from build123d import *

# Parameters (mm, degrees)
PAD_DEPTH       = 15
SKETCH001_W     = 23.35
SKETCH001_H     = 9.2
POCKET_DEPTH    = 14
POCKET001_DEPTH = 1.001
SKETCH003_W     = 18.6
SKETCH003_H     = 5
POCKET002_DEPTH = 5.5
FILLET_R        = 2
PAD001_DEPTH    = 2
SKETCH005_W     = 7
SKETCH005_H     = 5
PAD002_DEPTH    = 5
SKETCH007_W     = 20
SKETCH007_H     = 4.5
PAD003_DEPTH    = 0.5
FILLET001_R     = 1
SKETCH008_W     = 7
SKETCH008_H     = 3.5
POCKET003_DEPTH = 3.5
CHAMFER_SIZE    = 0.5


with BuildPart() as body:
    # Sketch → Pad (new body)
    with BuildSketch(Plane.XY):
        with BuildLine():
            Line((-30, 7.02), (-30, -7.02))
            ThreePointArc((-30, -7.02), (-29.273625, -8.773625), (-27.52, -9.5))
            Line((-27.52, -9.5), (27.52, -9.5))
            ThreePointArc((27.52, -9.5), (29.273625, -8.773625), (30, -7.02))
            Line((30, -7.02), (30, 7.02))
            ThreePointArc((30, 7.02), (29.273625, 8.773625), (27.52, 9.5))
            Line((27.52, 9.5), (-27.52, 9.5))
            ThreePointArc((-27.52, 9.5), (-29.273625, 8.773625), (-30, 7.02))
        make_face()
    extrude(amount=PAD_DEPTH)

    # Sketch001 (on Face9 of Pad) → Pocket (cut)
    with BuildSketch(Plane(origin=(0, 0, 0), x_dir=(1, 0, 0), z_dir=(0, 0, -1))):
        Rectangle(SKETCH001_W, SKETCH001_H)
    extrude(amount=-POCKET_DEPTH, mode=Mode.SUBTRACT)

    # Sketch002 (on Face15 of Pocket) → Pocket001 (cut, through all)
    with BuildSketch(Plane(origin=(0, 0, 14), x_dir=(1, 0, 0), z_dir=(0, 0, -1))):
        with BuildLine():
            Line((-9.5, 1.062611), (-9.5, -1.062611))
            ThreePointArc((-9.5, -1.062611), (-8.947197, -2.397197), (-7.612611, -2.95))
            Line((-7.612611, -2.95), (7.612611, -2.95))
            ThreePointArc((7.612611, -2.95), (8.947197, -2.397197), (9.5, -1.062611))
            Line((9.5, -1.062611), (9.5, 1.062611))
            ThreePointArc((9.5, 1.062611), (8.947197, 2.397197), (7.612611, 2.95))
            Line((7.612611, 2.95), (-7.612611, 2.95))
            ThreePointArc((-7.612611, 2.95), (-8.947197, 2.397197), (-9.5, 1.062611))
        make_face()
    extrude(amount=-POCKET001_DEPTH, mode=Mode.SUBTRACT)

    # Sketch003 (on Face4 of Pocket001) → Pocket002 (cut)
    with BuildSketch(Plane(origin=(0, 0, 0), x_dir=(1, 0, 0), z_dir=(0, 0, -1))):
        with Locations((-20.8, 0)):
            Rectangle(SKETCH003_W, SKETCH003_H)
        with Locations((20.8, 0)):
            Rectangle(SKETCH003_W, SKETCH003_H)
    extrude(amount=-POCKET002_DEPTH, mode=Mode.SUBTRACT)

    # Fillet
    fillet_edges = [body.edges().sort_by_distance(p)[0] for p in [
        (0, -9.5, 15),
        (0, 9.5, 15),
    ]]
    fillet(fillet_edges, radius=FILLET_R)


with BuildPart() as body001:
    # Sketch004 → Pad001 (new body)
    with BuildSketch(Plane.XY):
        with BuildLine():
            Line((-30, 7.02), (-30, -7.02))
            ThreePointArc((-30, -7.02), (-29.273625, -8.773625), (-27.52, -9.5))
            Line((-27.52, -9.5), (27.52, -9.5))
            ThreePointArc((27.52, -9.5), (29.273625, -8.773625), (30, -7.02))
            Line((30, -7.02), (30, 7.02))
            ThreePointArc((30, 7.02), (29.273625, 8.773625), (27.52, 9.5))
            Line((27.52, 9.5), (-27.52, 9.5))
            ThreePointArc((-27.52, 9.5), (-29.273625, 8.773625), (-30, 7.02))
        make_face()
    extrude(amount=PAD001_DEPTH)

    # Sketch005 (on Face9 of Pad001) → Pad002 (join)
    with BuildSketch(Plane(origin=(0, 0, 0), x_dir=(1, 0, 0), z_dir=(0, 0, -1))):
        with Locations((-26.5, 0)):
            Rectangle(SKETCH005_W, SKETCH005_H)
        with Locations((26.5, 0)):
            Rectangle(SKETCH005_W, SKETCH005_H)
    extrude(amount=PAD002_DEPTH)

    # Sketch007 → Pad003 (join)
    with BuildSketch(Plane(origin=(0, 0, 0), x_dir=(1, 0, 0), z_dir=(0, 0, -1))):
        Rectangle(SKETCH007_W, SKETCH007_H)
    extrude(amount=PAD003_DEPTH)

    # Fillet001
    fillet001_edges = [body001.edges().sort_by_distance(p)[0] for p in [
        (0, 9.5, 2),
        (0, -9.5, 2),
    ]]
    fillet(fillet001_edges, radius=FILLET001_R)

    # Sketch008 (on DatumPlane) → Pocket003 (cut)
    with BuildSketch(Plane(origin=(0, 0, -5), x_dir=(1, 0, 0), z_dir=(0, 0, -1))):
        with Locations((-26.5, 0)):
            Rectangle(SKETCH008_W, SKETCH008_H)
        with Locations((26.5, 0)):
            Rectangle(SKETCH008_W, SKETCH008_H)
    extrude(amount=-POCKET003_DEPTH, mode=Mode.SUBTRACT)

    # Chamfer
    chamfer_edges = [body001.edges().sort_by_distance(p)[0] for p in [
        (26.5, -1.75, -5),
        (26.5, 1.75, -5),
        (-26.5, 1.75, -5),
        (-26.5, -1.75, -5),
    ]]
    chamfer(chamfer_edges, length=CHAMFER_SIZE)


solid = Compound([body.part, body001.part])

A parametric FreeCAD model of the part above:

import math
import FreeCAD as App
import Part
import Sketcher

V = App.Vector
Q = App.Units.Quantity


def edges_at(feature, points):
    """Names of the edges that pass closest to the given points."""
    edges = feature.Shape.Edges
    near = lambda p: min(range(len(edges)), key=lambda i: edges[i].distToShape(Part.Vertex(*p))[0])
    return sorted({f"Edge{near(p) + 1}" for p in points})

doc = App.newDocument("Part")
body = doc.addObject("PartDesign::Body", "Body")

sketch1 = body.newObject("Sketcher::SketchObject", "Sketch")
sketch1.AttachmentSupport = (doc.getObject("XY_Plane"), [""])
sketch1.MapMode = "FlatFace"
sketch1.addGeometry([
    Part.LineSegment(V(-30, 7.02, 0), V(-30, -7.02, 0)),
    Part.ArcOfCircle(Part.Circle(V(-27.520001, -7.020001, 0), V(0, 0, 1), 2.479999), math.radians(179.999986), math.radians(270.000014)),
    Part.LineSegment(V(-27.52, -9.5, 0), V(27.52, -9.5, 0)),
    Part.ArcOfCircle(Part.Circle(V(27.520001, -7.020001, 0), V(0, 0, 1), 2.479999), math.radians(-90.000014), math.radians(0.000014)),
    Part.LineSegment(V(30, -7.02, 0), V(30, 7.02, 0)),
    Part.ArcOfCircle(Part.Circle(V(27.520001, 7.020001, 0), V(0, 0, 1), 2.479999), math.radians(-0.000014), math.radians(90.000014)),
    Part.LineSegment(V(27.52, 9.5, 0), V(-27.52, 9.5, 0)),
    Part.ArcOfCircle(Part.Circle(V(-27.520001, 7.020001, 0), V(0, 0, 1), 2.479999), math.radians(89.999986), math.radians(180.000014)),
], False)
sketch1.addConstraint([
    Sketcher.Constraint("Tangent", 0, 2, 1, 1),
    Sketcher.Constraint("Tangent", 1, 2, 2, 1),
    Sketcher.Constraint("Tangent", 2, 2, 3, 1),
    Sketcher.Constraint("Tangent", 3, 2, 4, 1),
    Sketcher.Constraint("Tangent", 4, 2, 5, 1),
    Sketcher.Constraint("Tangent", 5, 2, 6, 1),
    Sketcher.Constraint("Tangent", 6, 2, 7, 1),
    Sketcher.Constraint("Tangent", 7, 2, 0, 1),
    Sketcher.Constraint("Vertical", 0),
    Sketcher.Constraint("Horizontal", 2),
    Sketcher.Constraint("Vertical", 4),
    Sketcher.Constraint("Horizontal", 6),
    Sketcher.Constraint("Equal", 1, 3),
    Sketcher.Constraint("Equal", 3, 5),
    Sketcher.Constraint("Equal", 5, 7),
    Sketcher.Constraint("Symmetric", 1, 3, 5, 3, -1, 1),
    Sketcher.Constraint("Radius", 1, Q("2.479999 mm")),
    Sketcher.Constraint("DistanceX", 0, 2, -1, 1, Q("30 mm")),
    Sketcher.Constraint("DistanceY", 2, 2, 5, 2, Q("19 mm")),
])
pad1 = body.newObject("PartDesign::Pad", "Pad")
pad1.Profile = sketch1
pad1.Length = 15

sketch2 = body.newObject("Sketcher::SketchObject", "Sketch001")
sketch2.AttachmentSupport = (doc.getObject("XY_Plane"), [""])
sketch2.MapMode = "FlatFace"
sketch2.addGeometry([
    Part.LineSegment(V(-11.675, -4.6, 0), V(-11.675, 4.6, 0)),
    Part.LineSegment(V(-11.675, 4.6, 0), V(11.675, 4.6, 0)),
    Part.LineSegment(V(11.675, 4.6, 0), V(11.675, -4.6, 0)),
    Part.LineSegment(V(11.675, -4.6, 0), V(-11.675, -4.6, 0)),
], False)
sketch2.addConstraint([
    Sketcher.Constraint("Coincident", 0, 2, 1, 1),
    Sketcher.Constraint("Coincident", 1, 2, 2, 1),
    Sketcher.Constraint("Coincident", 2, 2, 3, 1),
    Sketcher.Constraint("Coincident", 3, 2, 0, 1),
    Sketcher.Constraint("Vertical", 0),
    Sketcher.Constraint("Horizontal", 1),
    Sketcher.Constraint("Vertical", 2),
    Sketcher.Constraint("Horizontal", 3),
    Sketcher.Constraint("Symmetric", 0, 2, 2, 2, -1, 1),
    Sketcher.Constraint("DistanceY", 0, 1, 0, 2, Q("9.2 mm")),
    Sketcher.Constraint("DistanceX", 1, 1, 1, 2, Q("23.35 mm")),
])
pocket1 = body.newObject("PartDesign::Pocket", "Pocket")
pocket1.Profile = sketch2
pocket1.Length = 14
pocket1.Reversed = True

sketch3 = body.newObject("Sketcher::SketchObject", "Sketch002")
sketch3.AttachmentSupport = (doc.getObject("XY_Plane"), [""])
sketch3.MapMode = "FlatFace"
sketch3.AttachmentOffset = App.Placement(V(0, 0, 14), App.Rotation())
sketch3.addGeometry([
    Part.LineSegment(V(-9.5, -1.062611, 0), V(-9.5, 1.062611, 0)),
    Part.ArcOfCircle(Part.Circle(V(-7.612613, 1.062612, 0), V(0, 0, 1), 1.887387), math.radians(89.999954), math.radians(180.000046)),
    Part.LineSegment(V(-7.612611, 2.95, 0), V(7.612611, 2.95, 0)),
    Part.ArcOfCircle(Part.Circle(V(7.612613, 1.062612, 0), V(0, 0, 1), 1.887387), math.radians(-0.000046), math.radians(90.000046)),
    Part.LineSegment(V(9.5, 1.062611, 0), V(9.5, -1.062611, 0)),
    Part.ArcOfCircle(Part.Circle(V(7.612613, -1.062612, 0), V(0, 0, 1), 1.887387), math.radians(-90.000046), math.radians(0.000046)),
    Part.LineSegment(V(7.612611, -2.95, 0), V(-7.612611, -2.95, 0)),
    Part.ArcOfCircle(Part.Circle(V(-7.612613, -1.062612, 0), V(0, 0, 1), 1.887387), math.radians(179.999954), math.radians(270.000046)),
], False)
sketch3.addConstraint([
    Sketcher.Constraint("Tangent", 0, 2, 1, 2),
    Sketcher.Constraint("Tangent", 1, 1, 2, 1),
    Sketcher.Constraint("Tangent", 2, 2, 3, 2),
    Sketcher.Constraint("Tangent", 3, 1, 4, 1),
    Sketcher.Constraint("Tangent", 4, 2, 5, 2),
    Sketcher.Constraint("Tangent", 5, 1, 6, 1),
    Sketcher.Constraint("Tangent", 6, 2, 7, 2),
    Sketcher.Constraint("Tangent", 7, 1, 0, 1),
    Sketcher.Constraint("Vertical", 0),
    Sketcher.Constraint("Horizontal", 2),
    Sketcher.Constraint("Vertical", 4),
    Sketcher.Constraint("Horizontal", 6),
    Sketcher.Constraint("Equal", 1, 3),
    Sketcher.Constraint("Equal", 3, 5),
    Sketcher.Constraint("Equal", 5, 7),
    Sketcher.Constraint("Symmetric", 1, 3, 5, 3, -1, 1),
    Sketcher.Constraint("DistanceX", 0, 2, -1, 1, Q("9.5 mm")),
    Sketcher.Constraint("DistanceY", 5, 1, 2, 2, Q("5.9 mm")),
    Sketcher.Constraint("Radius", 1, Q("1.887387 mm")),
])
pocket2 = body.newObject("PartDesign::Pocket", "Pocket001")
pocket2.Profile = sketch3
pocket2.Type = "ThroughAll"
pocket2.Reversed = True

sketch4 = body.newObject("Sketcher::SketchObject", "Sketch003")
sketch4.AttachmentSupport = (doc.getObject("XY_Plane"), [""])
sketch4.MapMode = "FlatFace"
sketch4.addGeometry([
    Part.LineSegment(V(-30.1, -2.5, 0), V(-30.1, 2.5, 0)),
    Part.LineSegment(V(-30.1, 2.5, 0), V(-11.5, 2.5, 0)),
    Part.LineSegment(V(-11.5, 2.5, 0), V(-11.5, -2.5, 0)),
    Part.LineSegment(V(-11.5, -2.5, 0), V(-30.1, -2.5, 0)),
    Part.LineSegment(V(11.5, -2.5, 0), V(11.5, 2.5, 0)),
    Part.LineSegment(V(11.5, 2.5, 0), V(30.1, 2.5, 0)),
    Part.LineSegment(V(30.1, 2.5, 0), V(30.1, -2.5, 0)),
    Part.LineSegment(V(30.1, -2.5, 0), V(11.5, -2.5, 0)),
], False)
sketch4.addConstraint([
    Sketcher.Constraint("Coincident", 0, 2, 1, 1),
    Sketcher.Constraint("Coincident", 1, 2, 2, 1),
    Sketcher.Constraint("Coincident", 2, 2, 3, 1),
    Sketcher.Constraint("Coincident", 3, 2, 0, 1),
    Sketcher.Constraint("Coincident", 4, 2, 5, 1),
    Sketcher.Constraint("Coincident", 5, 2, 6, 1),
    Sketcher.Constraint("Coincident", 6, 2, 7, 1),
    Sketcher.Constraint("Coincident", 7, 2, 4, 1),
    Sketcher.Constraint("Vertical", 0),
    Sketcher.Constraint("Horizontal", 1),
    Sketcher.Constraint("Vertical", 2),
    Sketcher.Constraint("Horizontal", 3),
    Sketcher.Constraint("Vertical", 4),
    Sketcher.Constraint("Horizontal", 5),
    Sketcher.Constraint("Vertical", 6),
    Sketcher.Constraint("Horizontal", 7),
    Sketcher.Constraint("Symmetric", 2, 2, 4, 2, -1, 1),
    Sketcher.Constraint("Symmetric", 0, 2, 6, 2, -1, 1),
    Sketcher.Constraint("Horizontal", 1, 2, 4, 2),
    Sketcher.Constraint("DistanceY", 0, 1, 0, 2, Q("5 mm")),
    Sketcher.Constraint("DistanceX", 1, 1, 1, 2, Q("18.6 mm")),
    Sketcher.Constraint("DistanceX", 1, 2, 4, 2, Q("23 mm")),
])
pocket3 = body.newObject("PartDesign::Pocket", "Pocket002")
pocket3.Profile = sketch4
pocket3.Length = 5.5
pocket3.Reversed = True
doc.recompute()

fillet = body.newObject("PartDesign::Fillet", "Fillet")
fillet.Base = (pocket3, edges_at(pocket3, [(0, -9.5, 15), (0, 9.5, 15)]))
fillet.Radius = 2
body2 = doc.addObject("PartDesign::Body", "Body001")

sketch5 = body2.newObject("Sketcher::SketchObject", "Sketch004")
sketch5.AttachmentSupport = (doc.getObject("XY_Plane001"), [""])
sketch5.MapMode = "FlatFace"
sketch5.addGeometry([
    Part.LineSegment(V(-30, 7.02, 0), V(-30, -7.02, 0)),
    Part.ArcOfCircle(Part.Circle(V(-27.520001, -7.020001, 0), V(0, 0, 1), 2.479999), math.radians(179.999986), math.radians(270.000014)),
    Part.LineSegment(V(-27.52, -9.5, 0), V(27.52, -9.5, 0)),
    Part.ArcOfCircle(Part.Circle(V(27.520001, -7.020001, 0), V(0, 0, 1), 2.479999), math.radians(-90.000014), math.radians(0.000014)),
    Part.LineSegment(V(30, -7.02, 0), V(30, 7.02, 0)),
    Part.ArcOfCircle(Part.Circle(V(27.520001, 7.020001, 0), V(0, 0, 1), 2.479999), math.radians(-0.000014), math.radians(90.000014)),
    Part.LineSegment(V(27.52, 9.5, 0), V(-27.52, 9.5, 0)),
    Part.ArcOfCircle(Part.Circle(V(-27.520001, 7.020001, 0), V(0, 0, 1), 2.479999), math.radians(89.999986), math.radians(180.000014)),
], False)
sketch5.addConstraint([
    Sketcher.Constraint("Tangent", 0, 2, 1, 1),
    Sketcher.Constraint("Tangent", 1, 2, 2, 1),
    Sketcher.Constraint("Tangent", 2, 2, 3, 1),
    Sketcher.Constraint("Tangent", 3, 2, 4, 1),
    Sketcher.Constraint("Tangent", 4, 2, 5, 1),
    Sketcher.Constraint("Tangent", 5, 2, 6, 1),
    Sketcher.Constraint("Tangent", 6, 2, 7, 1),
    Sketcher.Constraint("Tangent", 7, 2, 0, 1),
    Sketcher.Constraint("Vertical", 0),
    Sketcher.Constraint("Horizontal", 2),
    Sketcher.Constraint("Vertical", 4),
    Sketcher.Constraint("Horizontal", 6),
    Sketcher.Constraint("Equal", 1, 3),
    Sketcher.Constraint("Equal", 3, 5),
    Sketcher.Constraint("Equal", 5, 7),
    Sketcher.Constraint("Symmetric", 1, 3, 5, 3, -1, 1),
    Sketcher.Constraint("Radius", 1, Q("2.479999 mm")),
    Sketcher.Constraint("DistanceX", 0, 2, -1, 1, Q("30 mm")),
    Sketcher.Constraint("DistanceY", 2, 2, 5, 2, Q("19 mm")),
])
pad2 = body2.newObject("PartDesign::Pad", "Pad001")
pad2.Profile = sketch5
pad2.Length = 2

sketch6 = body2.newObject("Sketcher::SketchObject", "Sketch005")
sketch6.AttachmentSupport = (doc.getObject("XY_Plane001"), [""])
sketch6.MapMode = "FlatFace"
sketch6.addGeometry([
    Part.LineSegment(V(-30, -2.5, 0), V(-30, 2.5, 0)),
    Part.LineSegment(V(-30, 2.5, 0), V(-23, 2.5, 0)),
    Part.LineSegment(V(-23, 2.5, 0), V(-23, -2.5, 0)),
    Part.LineSegment(V(-23, -2.5, 0), V(-30, -2.5, 0)),
    Part.LineSegment(V(23, -2.5, 0), V(23, 2.5, 0)),
    Part.LineSegment(V(23, 2.5, 0), V(30, 2.5, 0)),
    Part.LineSegment(V(30, 2.5, 0), V(30, -2.5, 0)),
    Part.LineSegment(V(30, -2.5, 0), V(23, -2.5, 0)),
], False)
sketch6.addConstraint([
    Sketcher.Constraint("Coincident", 0, 2, 1, 1),
    Sketcher.Constraint("Coincident", 1, 2, 2, 1),
    Sketcher.Constraint("Coincident", 2, 2, 3, 1),
    Sketcher.Constraint("Coincident", 3, 2, 0, 1),
    Sketcher.Constraint("Coincident", 4, 2, 5, 1),
    Sketcher.Constraint("Coincident", 5, 2, 6, 1),
    Sketcher.Constraint("Coincident", 6, 2, 7, 1),
    Sketcher.Constraint("Coincident", 7, 2, 4, 1),
    Sketcher.Constraint("Vertical", 0),
    Sketcher.Constraint("Horizontal", 1),
    Sketcher.Constraint("Vertical", 2),
    Sketcher.Constraint("Horizontal", 3),
    Sketcher.Constraint("Vertical", 4),
    Sketcher.Constraint("Horizontal", 5),
    Sketcher.Constraint("Vertical", 6),
    Sketcher.Constraint("Horizontal", 7),
    Sketcher.Constraint("Symmetric", 2, 2, 4, 2, -1, 1),
    Sketcher.Constraint("Symmetric", 0, 2, 6, 2, -1, 1),
    Sketcher.Constraint("Horizontal", 1, 2, 4, 2),
    Sketcher.Constraint("DistanceX", 1, 1, 1, 2, Q("7 mm")),
    Sketcher.Constraint("DistanceY", 0, 1, 0, 2, Q("5 mm")),
    Sketcher.Constraint("DistanceX", 0, 2, -1, 1, Q("30 mm")),
])
pad3 = body2.newObject("PartDesign::Pad", "Pad002")
pad3.Profile = sketch6
pad3.Length = 5
pad3.Reversed = True

sketch7 = body2.newObject("Sketcher::SketchObject", "Sketch006")
sketch7.AttachmentSupport = (doc.getObject("XY_Plane001"), [""])
sketch7.MapMode = "FlatFace"
sketch7.addGeometry([
    Part.LineSegment(V(-10, -2.25, 0), V(-10, 2.25, 0)),
    Part.LineSegment(V(-10, 2.25, 0), V(10, 2.25, 0)),
    Part.LineSegment(V(10, 2.25, 0), V(10, -2.25, 0)),
    Part.LineSegment(V(10, -2.25, 0), V(-10, -2.25, 0)),
], False)
sketch7.addConstraint([
    Sketcher.Constraint("Coincident", 0, 2, 1, 1),
    Sketcher.Constraint("Coincident", 1, 2, 2, 1),
    Sketcher.Constraint("Coincident", 2, 2, 3, 1),
    Sketcher.Constraint("Coincident", 3, 2, 0, 1),
    Sketcher.Constraint("Vertical", 0),
    Sketcher.Constraint("Horizontal", 1),
    Sketcher.Constraint("Vertical", 2),
    Sketcher.Constraint("Horizontal", 3),
    Sketcher.Constraint("Symmetric", 0, 2, 2, 2, -1, 1),
    Sketcher.Constraint("DistanceX", 1, 1, 1, 2, Q("20 mm")),
    Sketcher.Constraint("DistanceY", 0, 1, 0, 2, Q("4.5 mm")),
])
pad4 = body2.newObject("PartDesign::Pad", "Pad003")
pad4.Profile = sketch7
pad4.Length = 0.5
pad4.Reversed = True
doc.recompute()

fillet2 = body2.newObject("PartDesign::Fillet", "Fillet001")
fillet2.Base = (pad4, edges_at(pad4, [(0, 9.5, 2), (0, -9.5, 2)]))
fillet2.Radius = 1

sketch8 = body2.newObject("Sketcher::SketchObject", "Sketch007")
sketch8.AttachmentSupport = (doc.getObject("XY_Plane001"), [""])
sketch8.MapMode = "FlatFace"
sketch8.AttachmentOffset = App.Placement(V(0, 0, -5), App.Rotation())
sketch8.addGeometry([
    Part.LineSegment(V(-30, -1.75, 0), V(-30, 1.75, 0)),
    Part.LineSegment(V(-30, 1.75, 0), V(-23, 1.75, 0)),
    Part.LineSegment(V(-23, 1.75, 0), V(-23, -1.75, 0)),
    Part.LineSegment(V(-23, -1.75, 0), V(-30, -1.75, 0)),
    Part.LineSegment(V(23, -1.75, 0), V(23, 1.75, 0)),
    Part.LineSegment(V(23, 1.75, 0), V(30, 1.75, 0)),
    Part.LineSegment(V(30, 1.75, 0), V(30, -1.75, 0)),
    Part.LineSegment(V(30, -1.75, 0), V(23, -1.75, 0)),
], False)
sketch8.addConstraint([
    Sketcher.Constraint("Coincident", 0, 2, 1, 1),
    Sketcher.Constraint("Coincident", 1, 2, 2, 1),
    Sketcher.Constraint("Coincident", 2, 2, 3, 1),
    Sketcher.Constraint("Coincident", 3, 2, 0, 1),
    Sketcher.Constraint("Coincident", 4, 2, 5, 1),
    Sketcher.Constraint("Coincident", 5, 2, 6, 1),
    Sketcher.Constraint("Coincident", 6, 2, 7, 1),
    Sketcher.Constraint("Coincident", 7, 2, 4, 1),
    Sketcher.Constraint("Vertical", 0),
    Sketcher.Constraint("Horizontal", 1),
    Sketcher.Constraint("Vertical", 2),
    Sketcher.Constraint("Horizontal", 3),
    Sketcher.Constraint("Vertical", 4),
    Sketcher.Constraint("Horizontal", 5),
    Sketcher.Constraint("Vertical", 6),
    Sketcher.Constraint("Horizontal", 7),
    Sketcher.Constraint("Symmetric", 2, 2, 4, 2, -1, 1),
    Sketcher.Constraint("Symmetric", 0, 2, 6, 2, -1, 1),
    Sketcher.Constraint("Horizontal", 1, 2, 4, 2),
    Sketcher.Constraint("DistanceX", 1, 1, 1, 2, Q("7 mm")),
    Sketcher.Constraint("DistanceY", 0, 1, 0, 2, Q("3.5 mm")),
    Sketcher.Constraint("DistanceX", 0, 2, -1, 1, Q("30 mm")),
])
pocket4 = body2.newObject("PartDesign::Pocket", "Pocket003")
pocket4.Profile = sketch8
pocket4.Length = 3.5
pocket4.Reversed = True
doc.recompute()

chamfer = body2.newObject("PartDesign::Chamfer", "Chamfer")
chamfer.Base = (pocket4, edges_at(pocket4, [
    (26.5, -1.75, -5),
    (26.5, 1.75, -5),
    (-26.5, 1.75, -5),
    (-26.5, -1.75, -5),
]))
chamfer.Size = 0.5

doc.recompute()
